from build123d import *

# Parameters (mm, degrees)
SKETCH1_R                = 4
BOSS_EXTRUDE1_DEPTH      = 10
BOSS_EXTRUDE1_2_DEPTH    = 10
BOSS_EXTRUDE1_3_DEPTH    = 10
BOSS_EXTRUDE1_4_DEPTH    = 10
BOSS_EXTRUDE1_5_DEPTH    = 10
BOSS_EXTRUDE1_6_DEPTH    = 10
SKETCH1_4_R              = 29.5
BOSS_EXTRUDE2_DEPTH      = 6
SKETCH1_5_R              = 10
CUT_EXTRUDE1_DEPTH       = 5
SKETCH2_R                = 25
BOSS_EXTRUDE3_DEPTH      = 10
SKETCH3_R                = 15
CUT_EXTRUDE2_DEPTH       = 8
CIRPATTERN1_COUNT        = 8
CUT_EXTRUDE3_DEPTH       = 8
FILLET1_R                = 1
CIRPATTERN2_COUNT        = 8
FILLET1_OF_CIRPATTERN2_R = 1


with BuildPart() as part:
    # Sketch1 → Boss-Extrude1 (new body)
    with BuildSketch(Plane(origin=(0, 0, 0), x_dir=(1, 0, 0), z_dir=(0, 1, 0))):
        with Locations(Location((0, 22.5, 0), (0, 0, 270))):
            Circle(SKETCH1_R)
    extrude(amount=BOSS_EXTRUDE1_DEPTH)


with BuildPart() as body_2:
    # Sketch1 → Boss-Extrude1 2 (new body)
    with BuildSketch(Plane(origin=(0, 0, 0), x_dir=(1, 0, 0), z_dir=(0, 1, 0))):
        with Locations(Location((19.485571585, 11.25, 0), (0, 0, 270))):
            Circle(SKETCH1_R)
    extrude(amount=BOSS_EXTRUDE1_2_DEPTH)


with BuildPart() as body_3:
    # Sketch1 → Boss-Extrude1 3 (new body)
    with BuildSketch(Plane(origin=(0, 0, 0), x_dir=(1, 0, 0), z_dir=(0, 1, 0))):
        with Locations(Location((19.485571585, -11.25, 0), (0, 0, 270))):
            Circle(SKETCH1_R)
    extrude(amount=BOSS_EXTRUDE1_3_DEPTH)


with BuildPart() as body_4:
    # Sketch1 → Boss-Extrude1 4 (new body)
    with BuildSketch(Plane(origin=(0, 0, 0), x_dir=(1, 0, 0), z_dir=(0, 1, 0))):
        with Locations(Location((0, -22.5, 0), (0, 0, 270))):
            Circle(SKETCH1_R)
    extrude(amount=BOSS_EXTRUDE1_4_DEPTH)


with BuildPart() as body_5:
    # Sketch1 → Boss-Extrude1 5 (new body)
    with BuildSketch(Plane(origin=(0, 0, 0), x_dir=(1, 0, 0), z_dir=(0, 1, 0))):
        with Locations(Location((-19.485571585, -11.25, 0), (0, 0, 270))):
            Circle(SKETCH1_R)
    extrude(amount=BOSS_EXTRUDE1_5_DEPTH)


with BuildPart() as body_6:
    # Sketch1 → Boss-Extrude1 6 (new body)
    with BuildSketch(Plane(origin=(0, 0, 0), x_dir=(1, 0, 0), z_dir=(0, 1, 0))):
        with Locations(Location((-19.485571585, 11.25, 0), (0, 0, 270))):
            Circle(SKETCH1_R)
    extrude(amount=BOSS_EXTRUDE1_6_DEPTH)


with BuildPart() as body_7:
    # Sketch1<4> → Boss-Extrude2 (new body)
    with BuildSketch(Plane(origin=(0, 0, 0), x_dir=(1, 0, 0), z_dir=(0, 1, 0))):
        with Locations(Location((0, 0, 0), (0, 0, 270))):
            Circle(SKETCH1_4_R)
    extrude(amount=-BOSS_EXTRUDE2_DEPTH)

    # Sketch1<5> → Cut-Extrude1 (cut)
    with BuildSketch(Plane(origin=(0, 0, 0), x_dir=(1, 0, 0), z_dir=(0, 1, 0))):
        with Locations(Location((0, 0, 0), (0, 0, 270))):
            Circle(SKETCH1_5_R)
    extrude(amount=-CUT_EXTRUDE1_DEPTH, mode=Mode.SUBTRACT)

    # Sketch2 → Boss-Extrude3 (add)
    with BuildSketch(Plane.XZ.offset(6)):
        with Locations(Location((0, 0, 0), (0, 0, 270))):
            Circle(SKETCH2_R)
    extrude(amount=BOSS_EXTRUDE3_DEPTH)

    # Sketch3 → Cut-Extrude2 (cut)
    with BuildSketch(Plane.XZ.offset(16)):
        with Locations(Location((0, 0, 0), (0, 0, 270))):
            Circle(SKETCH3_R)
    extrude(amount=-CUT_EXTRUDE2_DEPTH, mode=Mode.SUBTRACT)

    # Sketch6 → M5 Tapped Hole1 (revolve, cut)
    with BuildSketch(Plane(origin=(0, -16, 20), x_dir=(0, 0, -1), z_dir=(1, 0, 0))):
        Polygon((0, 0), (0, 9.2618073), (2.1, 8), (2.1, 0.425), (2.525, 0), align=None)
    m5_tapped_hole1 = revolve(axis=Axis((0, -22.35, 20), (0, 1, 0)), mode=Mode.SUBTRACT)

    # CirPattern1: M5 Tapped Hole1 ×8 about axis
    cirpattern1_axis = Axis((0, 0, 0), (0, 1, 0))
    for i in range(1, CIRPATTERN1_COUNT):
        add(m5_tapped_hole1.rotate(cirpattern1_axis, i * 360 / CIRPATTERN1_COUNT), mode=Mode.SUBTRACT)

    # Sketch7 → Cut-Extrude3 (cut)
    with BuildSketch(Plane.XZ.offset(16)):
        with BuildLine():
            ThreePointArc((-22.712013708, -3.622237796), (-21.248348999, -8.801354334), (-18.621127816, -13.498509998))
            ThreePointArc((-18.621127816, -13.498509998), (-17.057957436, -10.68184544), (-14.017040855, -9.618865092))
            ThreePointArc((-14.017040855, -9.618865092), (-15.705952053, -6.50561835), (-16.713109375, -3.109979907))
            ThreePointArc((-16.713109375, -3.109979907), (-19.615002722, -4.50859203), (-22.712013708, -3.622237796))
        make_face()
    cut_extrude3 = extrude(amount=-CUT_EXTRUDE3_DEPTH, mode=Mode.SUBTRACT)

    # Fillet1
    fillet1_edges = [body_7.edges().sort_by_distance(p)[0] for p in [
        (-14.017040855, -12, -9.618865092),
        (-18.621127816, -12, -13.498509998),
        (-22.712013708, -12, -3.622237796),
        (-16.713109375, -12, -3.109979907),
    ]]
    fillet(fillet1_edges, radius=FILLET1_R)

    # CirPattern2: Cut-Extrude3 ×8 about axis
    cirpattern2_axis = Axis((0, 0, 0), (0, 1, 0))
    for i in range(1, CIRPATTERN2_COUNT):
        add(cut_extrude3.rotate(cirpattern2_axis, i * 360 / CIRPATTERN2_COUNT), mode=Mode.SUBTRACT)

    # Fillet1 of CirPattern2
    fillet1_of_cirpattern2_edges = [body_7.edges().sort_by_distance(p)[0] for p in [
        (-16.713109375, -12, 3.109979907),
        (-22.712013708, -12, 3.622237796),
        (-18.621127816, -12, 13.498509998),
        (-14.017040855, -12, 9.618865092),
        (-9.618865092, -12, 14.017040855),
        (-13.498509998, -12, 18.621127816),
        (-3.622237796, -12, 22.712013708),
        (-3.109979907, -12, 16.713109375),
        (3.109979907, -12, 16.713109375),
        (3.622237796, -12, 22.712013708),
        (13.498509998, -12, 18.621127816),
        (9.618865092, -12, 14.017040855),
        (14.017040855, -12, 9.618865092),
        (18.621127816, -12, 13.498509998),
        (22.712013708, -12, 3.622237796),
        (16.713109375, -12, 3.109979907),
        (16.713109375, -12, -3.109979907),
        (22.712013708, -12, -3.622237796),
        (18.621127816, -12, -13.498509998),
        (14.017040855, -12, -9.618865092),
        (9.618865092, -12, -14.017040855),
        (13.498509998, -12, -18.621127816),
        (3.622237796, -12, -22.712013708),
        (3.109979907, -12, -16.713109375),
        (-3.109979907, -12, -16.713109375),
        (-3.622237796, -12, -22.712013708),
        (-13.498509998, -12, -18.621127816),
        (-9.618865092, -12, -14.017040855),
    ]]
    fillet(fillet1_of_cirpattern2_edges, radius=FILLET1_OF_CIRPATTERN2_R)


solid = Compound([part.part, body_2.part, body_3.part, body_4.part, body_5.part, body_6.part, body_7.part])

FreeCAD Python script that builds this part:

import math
import FreeCAD as App
import Part
import Sketcher
from FreeCAD import Vector
Q = App.Units.Quantity


def edges_at(feature, points):
    """Names of the edges that pass closest to the given points."""
    edges = feature.Shape.Edges
    near = lambda p: min(range(len(edges)), key=lambda i: edges[i].distToShape(Part.Vertex(*p))[0])
    return sorted({f"Edge{near(p) + 1}" for p in points})

doc = App.newDocument("Part")
body = doc.addObject("PartDesign::Body", "Body")

# Sketch on XZ plane
sketch1 = body.newObject("Sketcher::SketchObject", "Sketch")
sketch1.AttachmentSupport = (doc.getObject("XZ_Plane"), [""])
sketch1.MapMode = "FlatFace"
sketch1.addGeometry(Part.Circle(Vector(0, -22.5, 0), Vector(0, 0, 1), 4), False)
sketch1.addConstraint(Sketcher.Constraint("PointOnObject", 0, 3, -2))
sketch1.addConstraint(Sketcher.Constraint("Diameter", 0, Q("8 mm")))
sketch1.addConstraint(Sketcher.Constraint("DistanceY", 0, 3, -1, 1, Q("22.5 mm")))
pad1 = body.newObject("PartDesign::Pad", "Pad")
pad1.Profile = sketch1
pad1.Length = 10
pad1.Reversed = True
body2 = doc.addObject("PartDesign::Body", "Body001")

# Sketch on XZ plane
sketch2 = body2.newObject("Sketcher::SketchObject", "Sketch001")
sketch2.AttachmentSupport = (doc.getObject("XZ_Plane001"), [""])
sketch2.MapMode = "FlatFace"
sketch2.addGeometry(Part.Circle(Vector(19.5, -11.2, 0), Vector(0, 0, 1), 4), False)
sketch2.addConstraint(Sketcher.Constraint("Diameter", 0, Q("8 mm")))
sketch2.addConstraint(Sketcher.Constraint("DistanceY", 0, 3, -1, 1, Q("11.25 mm")))
sketch2.addConstraint(Sketcher.Constraint("DistanceX", -1, 1, 0, 3, Q("19.485572 mm")))
pad2 = body2.newObject("PartDesign::Pad", "Pad001")
pad2.Profile = sketch2
pad2.Length = 10
pad2.Reversed = True
body3 = doc.addObject("PartDesign::Body", "Body002")

# Sketch on XZ plane
sketch3 = body3.newObject("Sketcher::SketchObject", "Sketch002")
sketch3.AttachmentSupport = (doc.getObject("XZ_Plane002"), [""])
sketch3.MapMode = "FlatFace"
sketch3.addGeometry(Part.Circle(Vector(19.5, 11.2, 0), Vector(0, 0, 1), 4), False)
sketch3.addConstraint(Sketcher.Constraint("Diameter", 0, Q("8 mm")))
sketch3.addConstraint(Sketcher.Constraint("DistanceY", -1, 1, 0, 3, Q("11.25 mm")))
sketch3.addConstraint(Sketcher.Constraint("DistanceX", -1, 1, 0, 3, Q("19.485572 mm")))
pad3 = body3.newObject("PartDesign::Pad", "Pad002")
pad3.Profile = sketch3
pad3.Length = 10
pad3.Reversed = True
body4 = doc.addObject("PartDesign::Body", "Body003")

# Sketch on XZ plane
sketch4 = body4.newObject("Sketcher::SketchObject", "Sketch003")
sketch4.AttachmentSupport = (doc.getObject("XZ_Plane003"), [""])
sketch4.MapMode = "FlatFace"
sketch4.addGeometry(Part.Circle(Vector(0, 22.5, 0), Vector(0, 0, 1), 4), False)
sketch4.addConstraint(Sketcher.Constraint("PointOnObject", 0, 3, -2))
sketch4.addConstraint(Sketcher.Constraint("Diameter", 0, Q("8 mm")))
sketch4.addConstraint(Sketcher.Constraint("DistanceY", -1, 1, 0, 3, Q("22.5 mm")))
pad4 = body4.newObject("PartDesign::Pad", "Pad003")
pad4.Profile = sketch4
pad4.Length = 10
pad4.Reversed = True
body5 = doc.addObject("PartDesign::Body", "Body004")

# Sketch on XZ plane
sketch5 = body5.newObject("Sketcher::SketchObject", "Sketch004")
sketch5.AttachmentSupport = (doc.getObject("XZ_Plane004"), [""])
sketch5.MapMode = "FlatFace"
sketch5.addGeometry(Part.Circle(Vector(-19.5, 11.2, 0), Vector(0, 0, 1), 4), False)
sketch5.addConstraint(Sketcher.Constraint("Diameter", 0, Q("8 mm")))
sketch5.addConstraint(Sketcher.Constraint("DistanceY", -1, 1, 0, 3, Q("11.25 mm")))
sketch5.addConstraint(Sketcher.Constraint("DistanceX", 0, 3, -1, 1, Q("19.485572 mm")))
pad5 = body5.newObject("PartDesign::Pad", "Pad004")
pad5.Profile = sketch5
pad5.Length = 10
pad5.Reversed = True
body6 = doc.addObject("PartDesign::Body", "Body005")

# Sketch on XZ plane
sketch6 = body6.newObject("Sketcher::SketchObject", "Sketch005")
sketch6.AttachmentSupport = (doc.getObject("XZ_Plane005"), [""])
sketch6.MapMode = "FlatFace"
sketch6.addGeometry(Part.Circle(Vector(-19.5, -11.2, 0), Vector(0, 0, 1), 4), False)
sketch6.addConstraint(Sketcher.Constraint("Diameter", 0, Q("8 mm")))
sketch6.addConstraint(Sketcher.Constraint("DistanceY", 0, 3, -1, 1, Q("11.25 mm")))
sketch6.addConstraint(Sketcher.Constraint("DistanceX", 0, 3, -1, 1, Q("19.485572 mm")))
pad6 = body6.newObject("PartDesign::Pad", "Pad005")
pad6.Profile = sketch6
pad6.Length = 10
pad6.Reversed = True
body7 = doc.addObject("PartDesign::Body", "Body006")

# Sketch on XZ plane
sketch7 = body7.newObject("Sketcher::SketchObject", "Sketch006")
sketch7.AttachmentSupport = (doc.getObject("XZ_Plane006"), [""])
sketch7.MapMode = "FlatFace"
sketch7.addGeometry(Part.Circle(Vector(0, 0, 0), Vector(0, 0, 1), 30), False)
sketch7.addConstraint(Sketcher.Constraint("Coincident", 0, 3, -1, 1))
sketch7.addConstraint(Sketcher.Constraint("Diameter", 0, Q("59 mm")))
pad7 = body7.newObject("PartDesign::Pad", "Pad006")
pad7.Profile = sketch7
pad7.Length = 6

# Sketch on XZ plane
sketch8 = body7.newObject("Sketcher::SketchObject", "Sketch007")
sketch8.AttachmentSupport = (doc.getObject("XZ_Plane006"), [""])
sketch8.MapMode = "FlatFace"
sketch8.addGeometry(Part.Circle(Vector(0, 0, 0), Vector(0, 0, 1), 10), False)
sketch8.addConstraint(Sketcher.Constraint("Coincident", 0, 3, -1, 1))
sketch8.addConstraint(Sketcher.Constraint("Diameter", 0, Q("20 mm")))
pocket1 = body7.newObject("PartDesign::Pocket", "Pocket")
pocket1.Profile = sketch8
pocket1.Length = 5
pocket1.Reversed = True

# Sketch on XZ plane
sketch9 = body7.newObject("Sketcher::SketchObject", "Sketch008")
sketch9.AttachmentSupport = (doc.getObject("XZ_Plane006"), [""])
sketch9.MapMode = "FlatFace"
sketch9.AttachmentOffset = App.Placement(Vector(0, 0, 6), App.Rotation())
sketch9.addGeometry(Part.Circle(Vector(0, 0, 0), Vector(0, 0, 1), 25), False)
sketch9.addConstraint(Sketcher.Constraint("Coincident", 0, 3, -1, 1))
sketch9.addConstraint(Sketcher.Constraint("Diameter", 0, Q("50 mm")))
pad8 = body7.newObject("PartDesign::Pad", "Pad007")
pad8.Profile = sketch9
pad8.Length = 10

# Sketch on XZ plane
sketch10 = body7.newObject("Sketcher::SketchObject", "Sketch009")
sketch10.AttachmentSupport = (doc.getObject("XZ_Plane006"), [""])
sketch10.MapMode = "FlatFace"
sketch10.AttachmentOffset = App.Placement(Vector(0, 0, 16), App.Rotation())
sketch10.addGeometry(Part.Circle(Vector(0, 0, 0), Vector(0, 0, 1), 15), False)
sketch10.addConstraint(Sketcher.Constraint("Coincident", 0, 3, -1, 1))
sketch10.addConstraint(Sketcher.Constraint("Diameter", 0, Q("30 mm")))
pocket2 = body7.newObject("PartDesign::Pocket", "Pocket001")
pocket2.Profile = sketch10
pocket2.Length = 8

# Sketch on YZ plane
sketch11 = body7.newObject("Sketcher::SketchObject", "Sketch010")
sketch11.AttachmentSupport = (doc.getObject("YZ_Plane006"), [""])
sketch11.MapMode = "FlatFace"
sketch11.addGeometry(Part.LineSegment(Vector(-6.7, 20, 0), Vector(-16, 20, 0)), False)
sketch11.addGeometry(Part.LineSegment(Vector(-16, 20, 0), Vector(-16, 17.5, 0)), False)
sketch11.addGeometry(Part.LineSegment(Vector(-16, 17.5, 0), Vector(-15.6, 17.9, 0)), False)
sketch11.addGeometry(Part.LineSegment(Vector(-15.6, 17.9, 0), Vector(-8, 17.9, 0)), False)
sketch11.addGeometry(Part.LineSegment(Vector(-8, 17.9, 0), Vector(-6.7, 20, 0)), False)
sketch11.addGeometry(Part.LineSegment(Vector(-16, 20, 0), Vector(-6.7, 20, 0)), True)  # axis
sketch11.addConstraint(Sketcher.Constraint("Coincident", 0, 2, 1, 1))
sketch11.addConstraint(Sketcher.Constraint("Coincident", 1, 2, 2, 1))
sketch11.addConstraint(Sketcher.Constraint("Coincident", 2, 2, 3, 1))
sketch11.addConstraint(Sketcher.Constraint("Coincident", 3, 2, 4, 1))
sketch11.addConstraint(Sketcher.Constraint("Coincident", 4, 2, 0, 1))
sketch11.addConstraint(Sketcher.Constraint("Horizontal", 0))
sketch11.addConstraint(Sketcher.Constraint("Vertical", 1))
sketch11.addConstraint(Sketcher.Constraint("Horizontal", 3))
sketch11.addConstraint(Sketcher.Constraint("Horizontal", 5))
sketch11.addConstraint(Sketcher.Constraint("Coincident", 5, 1, 0, 2))
sketch11.addConstraint(Sketcher.Constraint("Equal", 0, 5))
sketch11.addConstraint(Sketcher.Constraint("Angle", 2, Q("45 deg")))
sketch11.addConstraint(Sketcher.Constraint("Angle", 4, Q("59 deg")))
sketch11.addConstraint(Sketcher.Constraint("DistanceX", 0, 2, -1, 1, Q("16 mm")))
sketch11.addConstraint(Sketcher.Constraint("DistanceY", -1, 1, 0, 2, Q("20 mm")))
sketch11.addConstraint(Sketcher.Constraint("DistanceX", 3, 2, -1, 1, Q("8 mm")))
sketch11.addConstraint(Sketcher.Constraint("DistanceY", -1, 1, 2, 2, Q("17.9 mm")))
sketch11.addConstraint(Sketcher.Constraint("DistanceX", 3, 1, 3, 2, Q("7.575 mm")))
groove = body7.newObject("PartDesign::Groove", "Groove")
groove.Profile = sketch11
groove.ReferenceAxis = (sketch11, ["Axis0"])
groove.Angle = 360
doc.recompute()

polarpattern = body7.newObject("PartDesign::PolarPattern", "PolarPattern")
polarpattern.Originals = [groove]
polarpattern.Axis = (doc.getObject("Y_Axis006"), [""])
polarpattern.Angle = 360
polarpattern.Occurrences = 8
body7.Tip = polarpattern

# Sketch on XZ plane
sketch12 = body7.newObject("Sketcher::SketchObject", "Sketch011")
sketch12.AttachmentSupport = (doc.getObject("XZ_Plane006"), [""])
sketch12.MapMode = "FlatFace"
sketch12.AttachmentOffset = App.Placement(Vector(0, 0, 16), App.Rotation())
sketch12.addGeometry(Part.ArcOfCircle(Part.Circle(Vector(0, 0, 0), Vector(0, 0, 1), 23), math.radians(-171), math.radians(-144)), False)
sketch12.addGeometry(Part.ArcOfCircle(Part.Circle(Vector(-14.1, -14.1, 0), Vector(0, 0, 1), 4.5), math.radians(88), math.radians(172)), False)
sketch12.addGeometry(Part.ArcOfCircle(Part.Circle(Vector(0, 0, 0), Vector(0, 0, 1), 17), math.radians(-169), math.radians(-146)), False)
sketch12.addGeometry(Part.ArcOfCircle(Part.Circle(Vector(-20, 0, 0), Vector(0, 0, 1), 4.5), math.radians(-127), math.radians(-43)), False)
sketch12.addConstraint(Sketcher.Constraint("Coincident", 0, 2, 1, 2))
sketch12.addConstraint(Sketcher.Constraint("Coincident", 1, 1, 2, 2))
sketch12.addConstraint(Sketcher.Constraint("Coincident", 2, 1, 3, 2))
sketch12.addConstraint(Sketcher.Constraint("Coincident", 3, 1, 0, 1))
sketch12.addConstraint(Sketcher.Constraint("Coincident", 0, 3, -1, 1))
sketch12.addConstraint(Sketcher.Constraint("Coincident", 2, 3, -1, 1))
sketch12.addConstraint(Sketcher.Constraint("Equal", 1, 3))
sketch12.addConstraint(Sketcher.Constraint("PointOnObject", 3, 3, -1))
sketch12.addConstraint(Sketcher.Constraint("Radius", 2, Q("17 mm")))
sketch12.addConstraint(Sketcher.Constraint("DistanceX", 3, 3, -1, 1, Q("20 mm")))
sketch12.addConstraint(Sketcher.Constraint("Radius", 1, Q("4.525 mm")))
sketch12.addConstraint(Sketcher.Constraint("Radius", 0, Q("22.999047 mm")))
sketch12.addConstraint(Sketcher.Constraint("DistanceY", 0, 2, -1, 1, Q("13.49851 mm")))
sketch12.addConstraint(Sketcher.Constraint("DistanceX", 1, 1, -1, 1, Q("14.017041 mm")))
pocket3 = body7.newObject("PartDesign::Pocket", "Pocket002")
pocket3.Profile = sketch12
pocket3.Length = 8
doc.recompute()

fillet = body7.newObject("PartDesign::Fillet", "Fillet")
fillet.Base = (pocket3, edges_at(pocket3, [
    (-14.017, -12, -9.619),
    (-18.621, -12, -13.499),
    (-22.712, -12, -3.622),
    (-16.713, -12, -3.11),
]))
fillet.Radius = 1
doc.recompute()

polarpattern2 = body7.newObject("PartDesign::PolarPattern", "PolarPattern001")
polarpattern2.Originals = [pocket3]
polarpattern2.Axis = (doc.getObject("Y_Axis006"), [""])
polarpattern2.Angle = 360
polarpattern2.Occurrences = 8
body7.Tip = polarpattern2
doc.recompute()

fillet2 = body7.newObject("PartDesign::Fillet", "Fillet001")
fillet2.Base = (polarpattern2, edges_at(polarpattern2, [
    (-16.713, -12, 3.11),
    (-22.712, -12, 3.622),
    (-18.621, -12, 13.499),
    (-14.017, -12, 9.619),
    (-9.619, -12, 14.017),
    (-13.499, -12, 18.621),
    (-3.622, -12, 22.712),
    (-3.11, -12, 16.713),
    (3.11, -12, 16.713),
    (3.622, -12, 22.712),
    (13.499, -12, 18.621),
    (9.619, -12, 14.017),
    (14.017, -12, 9.619),
    (18.621, -12, 13.499),
    (22.712, -12, 3.622),
    (16.713, -12, 3.11),
    (16.713, -12, -3.11),
    (22.712, -12, -3.622),
    (18.621, -12, -13.499),
    (14.017, -12, -9.619),
    (9.619, -12, -14.017),
    (13.499, -12, -18.621),
    (3.622, -12, -22.712),
    (3.11, -12, -16.713),
    (-3.11, -12, -16.713),
    (-3.622, -12, -22.712),
    (-13.499, -12, -18.621),
    (-9.619, -12, -14.017),
]))
fillet2.Radius = 1

doc.recompute()
